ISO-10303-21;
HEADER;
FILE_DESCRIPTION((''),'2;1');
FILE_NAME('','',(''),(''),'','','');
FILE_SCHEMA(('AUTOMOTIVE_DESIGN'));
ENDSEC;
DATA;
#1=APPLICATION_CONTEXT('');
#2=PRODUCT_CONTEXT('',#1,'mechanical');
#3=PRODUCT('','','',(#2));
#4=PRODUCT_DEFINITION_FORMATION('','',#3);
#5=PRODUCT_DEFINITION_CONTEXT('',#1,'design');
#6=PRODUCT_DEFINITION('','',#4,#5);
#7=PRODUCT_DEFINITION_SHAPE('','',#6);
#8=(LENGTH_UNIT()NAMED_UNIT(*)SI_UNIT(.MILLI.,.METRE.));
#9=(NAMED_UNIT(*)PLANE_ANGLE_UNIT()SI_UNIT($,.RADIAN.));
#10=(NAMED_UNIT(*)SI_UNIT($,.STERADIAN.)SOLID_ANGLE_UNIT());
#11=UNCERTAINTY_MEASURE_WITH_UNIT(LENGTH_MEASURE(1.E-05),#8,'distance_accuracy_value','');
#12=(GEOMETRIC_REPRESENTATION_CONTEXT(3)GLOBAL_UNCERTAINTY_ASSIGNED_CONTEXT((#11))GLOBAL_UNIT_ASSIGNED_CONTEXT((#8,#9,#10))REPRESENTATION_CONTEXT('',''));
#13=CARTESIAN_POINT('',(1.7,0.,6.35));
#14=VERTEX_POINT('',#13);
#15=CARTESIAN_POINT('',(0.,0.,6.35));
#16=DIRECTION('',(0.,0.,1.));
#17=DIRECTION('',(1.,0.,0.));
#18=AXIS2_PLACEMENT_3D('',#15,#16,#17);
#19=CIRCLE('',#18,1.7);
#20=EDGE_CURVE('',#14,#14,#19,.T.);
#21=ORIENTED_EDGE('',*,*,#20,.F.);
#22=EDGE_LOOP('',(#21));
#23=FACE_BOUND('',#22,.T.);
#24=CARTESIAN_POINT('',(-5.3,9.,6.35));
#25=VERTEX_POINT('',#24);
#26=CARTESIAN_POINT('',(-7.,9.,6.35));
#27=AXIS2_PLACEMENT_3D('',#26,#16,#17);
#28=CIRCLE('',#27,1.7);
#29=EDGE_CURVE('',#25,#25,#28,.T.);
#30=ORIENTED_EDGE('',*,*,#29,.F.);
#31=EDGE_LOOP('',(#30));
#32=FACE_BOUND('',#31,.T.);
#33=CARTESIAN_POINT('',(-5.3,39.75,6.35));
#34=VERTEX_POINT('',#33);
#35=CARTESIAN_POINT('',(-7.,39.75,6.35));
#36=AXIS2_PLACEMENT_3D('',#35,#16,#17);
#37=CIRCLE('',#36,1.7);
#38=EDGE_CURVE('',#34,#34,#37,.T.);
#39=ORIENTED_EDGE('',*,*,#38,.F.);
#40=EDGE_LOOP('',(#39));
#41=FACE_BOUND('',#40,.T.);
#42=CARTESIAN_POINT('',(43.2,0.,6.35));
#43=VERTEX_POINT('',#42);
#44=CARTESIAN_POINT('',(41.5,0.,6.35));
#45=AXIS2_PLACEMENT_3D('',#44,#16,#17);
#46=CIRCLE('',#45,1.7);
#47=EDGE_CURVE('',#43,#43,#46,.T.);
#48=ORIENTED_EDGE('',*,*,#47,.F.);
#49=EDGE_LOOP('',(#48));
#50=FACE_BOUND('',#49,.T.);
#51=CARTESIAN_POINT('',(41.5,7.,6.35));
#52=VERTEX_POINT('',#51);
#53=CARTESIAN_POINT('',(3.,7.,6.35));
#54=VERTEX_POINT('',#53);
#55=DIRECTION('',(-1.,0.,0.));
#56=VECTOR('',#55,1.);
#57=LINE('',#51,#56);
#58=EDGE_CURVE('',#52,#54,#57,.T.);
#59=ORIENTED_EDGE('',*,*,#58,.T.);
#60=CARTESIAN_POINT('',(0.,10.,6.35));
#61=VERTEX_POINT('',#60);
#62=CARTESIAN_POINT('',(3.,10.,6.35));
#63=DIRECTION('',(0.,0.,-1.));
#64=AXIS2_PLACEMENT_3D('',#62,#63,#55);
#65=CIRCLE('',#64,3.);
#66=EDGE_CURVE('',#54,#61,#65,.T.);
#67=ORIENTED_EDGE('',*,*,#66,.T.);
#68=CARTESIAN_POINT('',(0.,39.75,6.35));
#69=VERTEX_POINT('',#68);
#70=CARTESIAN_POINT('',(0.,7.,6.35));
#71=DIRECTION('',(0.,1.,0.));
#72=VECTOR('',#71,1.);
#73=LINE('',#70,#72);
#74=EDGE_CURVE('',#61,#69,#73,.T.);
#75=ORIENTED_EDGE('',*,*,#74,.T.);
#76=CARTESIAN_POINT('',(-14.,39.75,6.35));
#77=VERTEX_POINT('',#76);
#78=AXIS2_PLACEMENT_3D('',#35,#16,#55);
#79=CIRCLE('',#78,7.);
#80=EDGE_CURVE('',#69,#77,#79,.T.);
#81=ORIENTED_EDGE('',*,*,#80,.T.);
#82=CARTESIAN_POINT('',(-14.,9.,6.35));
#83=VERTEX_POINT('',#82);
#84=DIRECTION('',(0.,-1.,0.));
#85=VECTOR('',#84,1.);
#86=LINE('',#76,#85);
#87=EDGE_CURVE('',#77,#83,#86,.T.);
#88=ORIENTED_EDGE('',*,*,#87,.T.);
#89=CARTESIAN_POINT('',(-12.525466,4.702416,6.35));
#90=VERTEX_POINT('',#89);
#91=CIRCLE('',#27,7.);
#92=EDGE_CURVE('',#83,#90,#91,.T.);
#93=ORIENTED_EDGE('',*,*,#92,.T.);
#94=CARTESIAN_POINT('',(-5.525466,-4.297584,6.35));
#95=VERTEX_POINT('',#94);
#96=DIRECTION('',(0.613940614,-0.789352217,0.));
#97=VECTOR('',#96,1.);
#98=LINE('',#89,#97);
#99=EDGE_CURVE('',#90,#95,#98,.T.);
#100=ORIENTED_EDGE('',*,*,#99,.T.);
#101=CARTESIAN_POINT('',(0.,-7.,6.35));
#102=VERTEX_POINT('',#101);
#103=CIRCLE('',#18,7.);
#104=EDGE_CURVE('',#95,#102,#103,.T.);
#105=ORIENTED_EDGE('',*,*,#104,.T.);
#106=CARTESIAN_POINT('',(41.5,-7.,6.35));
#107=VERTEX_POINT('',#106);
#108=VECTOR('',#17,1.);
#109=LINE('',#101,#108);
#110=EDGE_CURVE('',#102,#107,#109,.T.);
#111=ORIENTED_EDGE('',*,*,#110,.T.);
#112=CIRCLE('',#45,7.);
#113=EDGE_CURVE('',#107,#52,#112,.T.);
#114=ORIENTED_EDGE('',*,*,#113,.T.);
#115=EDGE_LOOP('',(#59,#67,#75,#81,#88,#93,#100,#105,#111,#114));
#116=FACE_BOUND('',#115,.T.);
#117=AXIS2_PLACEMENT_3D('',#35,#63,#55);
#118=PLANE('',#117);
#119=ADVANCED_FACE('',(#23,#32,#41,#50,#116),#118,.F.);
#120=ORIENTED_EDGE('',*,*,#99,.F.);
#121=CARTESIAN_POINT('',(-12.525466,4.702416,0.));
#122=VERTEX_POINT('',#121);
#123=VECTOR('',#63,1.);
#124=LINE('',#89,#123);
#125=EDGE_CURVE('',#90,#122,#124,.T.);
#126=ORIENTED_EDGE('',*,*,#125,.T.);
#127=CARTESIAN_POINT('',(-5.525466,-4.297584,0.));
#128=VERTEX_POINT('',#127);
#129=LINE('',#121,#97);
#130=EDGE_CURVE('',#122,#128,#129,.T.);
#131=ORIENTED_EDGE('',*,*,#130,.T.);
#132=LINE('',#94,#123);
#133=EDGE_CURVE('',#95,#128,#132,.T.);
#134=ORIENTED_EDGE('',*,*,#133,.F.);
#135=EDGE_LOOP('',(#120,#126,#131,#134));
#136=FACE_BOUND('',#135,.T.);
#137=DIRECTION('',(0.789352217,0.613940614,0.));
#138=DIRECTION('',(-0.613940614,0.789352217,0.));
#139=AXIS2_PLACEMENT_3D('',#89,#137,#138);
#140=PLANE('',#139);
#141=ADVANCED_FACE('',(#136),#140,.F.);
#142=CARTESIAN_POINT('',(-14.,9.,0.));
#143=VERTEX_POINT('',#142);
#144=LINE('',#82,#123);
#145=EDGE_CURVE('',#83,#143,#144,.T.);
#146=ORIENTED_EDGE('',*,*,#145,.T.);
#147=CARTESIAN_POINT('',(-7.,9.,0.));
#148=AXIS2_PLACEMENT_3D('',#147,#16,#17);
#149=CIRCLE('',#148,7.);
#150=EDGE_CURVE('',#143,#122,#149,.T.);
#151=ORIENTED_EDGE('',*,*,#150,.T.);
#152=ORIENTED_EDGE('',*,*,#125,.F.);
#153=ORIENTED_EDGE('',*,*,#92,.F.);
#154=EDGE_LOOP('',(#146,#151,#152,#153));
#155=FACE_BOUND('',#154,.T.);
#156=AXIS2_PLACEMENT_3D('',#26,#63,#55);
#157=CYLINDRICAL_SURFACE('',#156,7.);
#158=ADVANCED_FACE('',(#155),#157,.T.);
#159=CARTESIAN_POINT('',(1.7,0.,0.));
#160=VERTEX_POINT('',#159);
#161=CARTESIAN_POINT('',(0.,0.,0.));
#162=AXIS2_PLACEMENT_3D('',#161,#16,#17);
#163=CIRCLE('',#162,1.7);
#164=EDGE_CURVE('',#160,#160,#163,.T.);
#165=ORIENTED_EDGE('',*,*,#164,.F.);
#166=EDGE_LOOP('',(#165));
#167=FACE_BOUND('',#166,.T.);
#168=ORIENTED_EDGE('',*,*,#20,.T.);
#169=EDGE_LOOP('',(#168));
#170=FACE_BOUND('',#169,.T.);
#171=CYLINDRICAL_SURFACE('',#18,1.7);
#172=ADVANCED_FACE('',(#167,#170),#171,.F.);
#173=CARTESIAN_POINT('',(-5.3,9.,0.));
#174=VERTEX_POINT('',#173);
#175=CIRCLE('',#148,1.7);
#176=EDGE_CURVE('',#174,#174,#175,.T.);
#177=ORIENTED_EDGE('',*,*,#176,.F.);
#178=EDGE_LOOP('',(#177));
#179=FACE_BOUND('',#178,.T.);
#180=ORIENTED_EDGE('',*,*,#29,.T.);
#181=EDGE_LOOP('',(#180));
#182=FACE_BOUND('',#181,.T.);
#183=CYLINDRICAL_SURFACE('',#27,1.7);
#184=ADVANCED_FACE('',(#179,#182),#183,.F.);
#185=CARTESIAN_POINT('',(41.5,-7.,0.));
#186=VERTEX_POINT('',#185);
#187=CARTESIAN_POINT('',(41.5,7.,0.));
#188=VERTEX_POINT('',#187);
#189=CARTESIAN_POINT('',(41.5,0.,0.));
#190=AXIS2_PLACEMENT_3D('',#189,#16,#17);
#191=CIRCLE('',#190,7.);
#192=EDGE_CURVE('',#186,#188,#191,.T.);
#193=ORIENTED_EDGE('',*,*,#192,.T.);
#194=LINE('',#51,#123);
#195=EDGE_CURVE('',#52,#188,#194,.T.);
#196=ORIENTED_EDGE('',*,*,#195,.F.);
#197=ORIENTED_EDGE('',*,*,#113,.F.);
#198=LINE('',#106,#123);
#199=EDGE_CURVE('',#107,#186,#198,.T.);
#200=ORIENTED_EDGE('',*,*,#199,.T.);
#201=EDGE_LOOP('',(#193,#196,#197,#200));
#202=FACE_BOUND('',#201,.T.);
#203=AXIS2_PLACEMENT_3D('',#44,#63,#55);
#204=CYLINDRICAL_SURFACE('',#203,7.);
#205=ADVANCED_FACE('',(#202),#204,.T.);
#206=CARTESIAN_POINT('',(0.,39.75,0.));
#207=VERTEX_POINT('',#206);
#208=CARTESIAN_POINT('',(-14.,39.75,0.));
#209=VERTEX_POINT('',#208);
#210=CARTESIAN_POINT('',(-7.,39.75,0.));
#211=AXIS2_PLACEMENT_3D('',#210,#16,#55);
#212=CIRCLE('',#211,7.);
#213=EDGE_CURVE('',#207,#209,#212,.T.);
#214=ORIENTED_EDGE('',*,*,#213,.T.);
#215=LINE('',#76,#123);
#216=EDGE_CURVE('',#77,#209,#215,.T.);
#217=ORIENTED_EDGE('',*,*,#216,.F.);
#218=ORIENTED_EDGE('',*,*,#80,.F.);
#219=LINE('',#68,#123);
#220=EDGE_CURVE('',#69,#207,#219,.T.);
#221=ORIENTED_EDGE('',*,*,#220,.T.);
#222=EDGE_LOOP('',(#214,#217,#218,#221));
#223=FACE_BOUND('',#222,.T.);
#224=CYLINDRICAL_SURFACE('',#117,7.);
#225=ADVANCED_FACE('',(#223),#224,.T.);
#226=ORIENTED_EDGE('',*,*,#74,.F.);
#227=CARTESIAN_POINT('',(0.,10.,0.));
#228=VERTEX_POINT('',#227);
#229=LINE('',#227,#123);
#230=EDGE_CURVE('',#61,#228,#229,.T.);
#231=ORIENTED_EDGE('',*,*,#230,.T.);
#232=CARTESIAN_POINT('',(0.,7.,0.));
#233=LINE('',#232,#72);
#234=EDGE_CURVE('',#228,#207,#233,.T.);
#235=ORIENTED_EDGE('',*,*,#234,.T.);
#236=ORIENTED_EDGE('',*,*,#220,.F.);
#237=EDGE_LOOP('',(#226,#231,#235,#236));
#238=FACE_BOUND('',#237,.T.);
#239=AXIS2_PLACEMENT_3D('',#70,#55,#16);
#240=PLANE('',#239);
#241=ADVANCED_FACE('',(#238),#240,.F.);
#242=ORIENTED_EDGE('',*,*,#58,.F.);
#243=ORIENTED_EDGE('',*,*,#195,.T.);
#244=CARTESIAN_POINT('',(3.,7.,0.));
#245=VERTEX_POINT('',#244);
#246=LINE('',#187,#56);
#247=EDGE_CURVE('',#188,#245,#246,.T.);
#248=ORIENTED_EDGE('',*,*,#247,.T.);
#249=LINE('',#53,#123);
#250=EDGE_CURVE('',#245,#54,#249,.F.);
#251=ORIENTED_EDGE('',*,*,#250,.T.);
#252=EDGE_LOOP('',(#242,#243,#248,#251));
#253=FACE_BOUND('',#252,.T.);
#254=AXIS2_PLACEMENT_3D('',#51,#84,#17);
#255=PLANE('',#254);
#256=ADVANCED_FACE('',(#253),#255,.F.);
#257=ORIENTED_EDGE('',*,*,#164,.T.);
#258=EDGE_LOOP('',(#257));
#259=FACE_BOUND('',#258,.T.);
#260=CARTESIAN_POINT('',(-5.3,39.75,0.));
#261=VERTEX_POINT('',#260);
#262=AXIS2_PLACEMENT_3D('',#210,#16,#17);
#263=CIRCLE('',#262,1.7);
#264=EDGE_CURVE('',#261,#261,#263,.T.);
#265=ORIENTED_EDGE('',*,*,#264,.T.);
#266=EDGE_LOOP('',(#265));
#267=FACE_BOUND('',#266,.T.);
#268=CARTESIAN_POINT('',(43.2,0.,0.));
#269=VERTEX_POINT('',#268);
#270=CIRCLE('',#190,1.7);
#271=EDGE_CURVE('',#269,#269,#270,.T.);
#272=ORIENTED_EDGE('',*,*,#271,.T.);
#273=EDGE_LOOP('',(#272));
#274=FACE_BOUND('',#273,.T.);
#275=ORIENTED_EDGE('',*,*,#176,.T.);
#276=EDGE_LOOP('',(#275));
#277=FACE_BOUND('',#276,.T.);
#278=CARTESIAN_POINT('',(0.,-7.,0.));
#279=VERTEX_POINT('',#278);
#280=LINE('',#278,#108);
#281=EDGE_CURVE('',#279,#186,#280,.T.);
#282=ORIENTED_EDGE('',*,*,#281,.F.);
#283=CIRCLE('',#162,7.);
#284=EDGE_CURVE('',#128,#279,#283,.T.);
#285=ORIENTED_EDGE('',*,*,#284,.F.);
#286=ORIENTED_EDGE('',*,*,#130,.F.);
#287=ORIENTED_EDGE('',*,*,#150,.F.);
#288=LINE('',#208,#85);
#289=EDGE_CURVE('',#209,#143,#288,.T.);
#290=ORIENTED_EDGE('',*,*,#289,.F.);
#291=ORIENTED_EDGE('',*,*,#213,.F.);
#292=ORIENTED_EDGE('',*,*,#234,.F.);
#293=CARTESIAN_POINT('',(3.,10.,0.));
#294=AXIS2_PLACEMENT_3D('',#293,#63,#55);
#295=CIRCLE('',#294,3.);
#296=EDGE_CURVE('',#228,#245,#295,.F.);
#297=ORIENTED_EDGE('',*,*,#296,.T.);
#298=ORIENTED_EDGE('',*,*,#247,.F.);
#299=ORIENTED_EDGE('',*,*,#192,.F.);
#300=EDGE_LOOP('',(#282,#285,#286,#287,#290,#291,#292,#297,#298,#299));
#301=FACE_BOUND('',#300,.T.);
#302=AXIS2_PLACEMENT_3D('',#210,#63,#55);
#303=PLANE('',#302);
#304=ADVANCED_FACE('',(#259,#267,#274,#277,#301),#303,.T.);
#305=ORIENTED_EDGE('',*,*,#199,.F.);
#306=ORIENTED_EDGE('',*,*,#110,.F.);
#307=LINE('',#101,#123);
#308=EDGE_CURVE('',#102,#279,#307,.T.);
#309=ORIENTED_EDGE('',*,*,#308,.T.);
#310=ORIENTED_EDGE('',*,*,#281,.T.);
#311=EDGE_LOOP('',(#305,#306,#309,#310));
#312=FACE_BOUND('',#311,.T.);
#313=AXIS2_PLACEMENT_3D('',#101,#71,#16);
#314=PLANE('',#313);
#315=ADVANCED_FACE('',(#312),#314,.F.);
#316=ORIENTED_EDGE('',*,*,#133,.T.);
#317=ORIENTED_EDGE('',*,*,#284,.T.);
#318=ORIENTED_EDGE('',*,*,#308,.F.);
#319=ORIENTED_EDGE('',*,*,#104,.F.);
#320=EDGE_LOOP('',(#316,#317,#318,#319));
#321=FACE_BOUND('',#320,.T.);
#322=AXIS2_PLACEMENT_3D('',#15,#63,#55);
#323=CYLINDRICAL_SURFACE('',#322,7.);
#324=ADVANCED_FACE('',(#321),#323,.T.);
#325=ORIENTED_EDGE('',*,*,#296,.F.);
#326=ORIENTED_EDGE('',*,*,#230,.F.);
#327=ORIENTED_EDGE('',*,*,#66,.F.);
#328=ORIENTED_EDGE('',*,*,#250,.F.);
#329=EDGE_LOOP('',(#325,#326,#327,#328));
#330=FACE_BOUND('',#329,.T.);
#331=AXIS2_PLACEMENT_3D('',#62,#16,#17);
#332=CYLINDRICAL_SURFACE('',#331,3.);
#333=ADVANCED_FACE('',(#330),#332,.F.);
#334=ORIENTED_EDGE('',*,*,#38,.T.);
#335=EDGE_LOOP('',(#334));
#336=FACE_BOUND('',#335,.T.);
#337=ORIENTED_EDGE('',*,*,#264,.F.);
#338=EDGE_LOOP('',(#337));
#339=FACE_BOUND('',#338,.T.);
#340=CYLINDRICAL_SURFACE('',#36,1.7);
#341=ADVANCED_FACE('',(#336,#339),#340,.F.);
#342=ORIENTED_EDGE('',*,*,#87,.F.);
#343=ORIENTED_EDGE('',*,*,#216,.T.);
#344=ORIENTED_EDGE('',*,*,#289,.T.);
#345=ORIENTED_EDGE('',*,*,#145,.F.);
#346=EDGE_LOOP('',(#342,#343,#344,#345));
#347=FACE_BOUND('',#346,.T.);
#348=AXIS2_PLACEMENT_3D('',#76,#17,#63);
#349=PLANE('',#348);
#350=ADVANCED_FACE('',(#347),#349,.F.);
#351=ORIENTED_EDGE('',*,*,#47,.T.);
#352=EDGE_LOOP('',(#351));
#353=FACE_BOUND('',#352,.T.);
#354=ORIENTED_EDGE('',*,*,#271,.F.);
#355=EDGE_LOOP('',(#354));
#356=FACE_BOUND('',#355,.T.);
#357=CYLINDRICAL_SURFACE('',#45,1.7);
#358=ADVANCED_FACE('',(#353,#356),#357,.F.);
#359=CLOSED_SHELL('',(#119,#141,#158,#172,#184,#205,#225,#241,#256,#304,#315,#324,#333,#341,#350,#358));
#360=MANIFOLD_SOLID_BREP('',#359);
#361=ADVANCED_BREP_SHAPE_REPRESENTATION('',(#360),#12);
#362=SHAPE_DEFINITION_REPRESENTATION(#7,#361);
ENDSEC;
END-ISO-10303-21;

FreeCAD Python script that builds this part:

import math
import FreeCAD as App
import Part
import Sketcher
from FreeCAD import Vector


def edges_at(feature, points):
    """Names of the edges that pass closest to the given points."""
    edges = feature.Shape.Edges
    near = lambda p: min(range(len(edges)), key=lambda i: edges[i].distToShape(Part.Vertex(*p))[0])
    return sorted({f"Edge{near(p) + 1}" for p in points})

doc = App.newDocument("Part")
body = doc.addObject("PartDesign::Body", "Body")

# Sketch on XY plane
sketch1 = body.newObject("Sketcher::SketchObject", "Sketch")
sketch1.AttachmentSupport = (doc.getObject("XY_Plane"), [""])
sketch1.MapMode = "FlatFace"
sketch1.addGeometry(Part.LineSegment(Vector(-14, 39.8, 0), Vector(-14, 9, 0)), False)
sketch1.addGeometry(Part.ArcOfCircle(Part.Circle(Vector(-7, 9, 0), Vector(0, 0, 1), 7), math.radians(-180), math.radians(-142)), False)
sketch1.addGeometry(Part.LineSegment(Vector(-12.5, 4.7, 0), Vector(-5.5, -4.3, 0)), False)
sketch1.addGeometry(Part.ArcOfCircle(Part.Circle(Vector(0, 0, 0), Vector(0, 0, 1), 7), math.radians(-142), math.radians(-90)), False)
sketch1.addGeometry(Part.LineSegment(Vector(0, -7, 0), Vector(41.5, -7, 0)), False)
sketch1.addGeometry(Part.ArcOfCircle(Part.Circle(Vector(41.5, 0, 0), Vector(0, 0, 1), 7), math.radians(-90), math.radians(90)), False)
sketch1.addGeometry(Part.LineSegment(Vector(41.5, 7, 0), Vector(0, 7, 0)), False)
sketch1.addGeometry(Part.LineSegment(Vector(0, 7, 0), Vector(0, 39.8, 0)), False)
sketch1.addGeometry(Part.ArcOfCircle(Part.Circle(Vector(-7, 39.8, 0), Vector(0, 0, 1), 7), math.radians(0), math.radians(180)), False)
sketch1.addConstraint(Sketcher.Constraint("Tangent", 0, 2, 1, 1))
sketch1.addConstraint(Sketcher.Constraint("Tangent", 1, 2, 2, 1))
sketch1.addConstraint(Sketcher.Constraint("Tangent", 2, 2, 3, 1))
sketch1.addConstraint(Sketcher.Constraint("Tangent", 3, 2, 4, 1))
sketch1.addConstraint(Sketcher.Constraint("Tangent", 4, 2, 5, 1))
sketch1.addConstraint(Sketcher.Constraint("Tangent", 5, 2, 6, 1))
sketch1.addConstraint(Sketcher.Constraint("Coincident", 6, 2, 7, 1))
sketch1.addConstraint(Sketcher.Constraint("Tangent", 7, 2, 8, 1))
sketch1.addConstraint(Sketcher.Constraint("Tangent", 8, 2, 0, 1))
sketch1.addConstraint(Sketcher.Constraint("Vertical", 0))
sketch1.addConstraint(Sketcher.Constraint("Horizontal", 4))
sketch1.addConstraint(Sketcher.Constraint("Horizontal", 6))
sketch1.addConstraint(Sketcher.Constraint("Vertical", 7))
sketch1.addConstraint(Sketcher.Constraint("Coincident", 3, 3, -1, 1))
sketch1.addConstraint(Sketcher.Constraint("Equal", 1, 3))
sketch1.addConstraint(Sketcher.Constraint("Equal", 3, 5))
sketch1.addConstraint(Sketcher.Constraint("Equal", 5, 8))
sketch1.addConstraint(Sketcher.Constraint("PointOnObject", 6, 2, -2))
sketch1.addConstraint(Sketcher.Constraint("Radius", 1, 7.0))
sketch1.addConstraint(Sketcher.Constraint("DistanceX", 4, 1, 4, 2, 41.5))
sketch1.addConstraint(Sketcher.Constraint("DistanceY", -1, 1, 1, 3, 9.0))
sketch1.addConstraint(Sketcher.Constraint("DistanceY", 0, 2, 0, 1, 30.75))
pad1 = body.newObject("PartDesign::Pad", "Pad")
pad1.Profile = sketch1
pad1.Length = 6.35
doc.recompute()

fillet = body.newObject("PartDesign::Fillet", "Fillet")
fillet.Base = (pad1, edges_at(pad1, [(0, 7, 3.175)]))
fillet.Radius = 3

# Sketch on XY plane
sketch2 = body.newObject("Sketcher::SketchObject", "Sketch001")
sketch2.AttachmentSupport = (doc.getObject("XY_Plane"), [""])
sketch2.MapMode = "FlatFace"
sketch2.AttachmentOffset = App.Placement(Vector(0, 0, 6.35), App.Rotation())
sketch2.addGeometry(Part.Circle(Vector(-7, 39.8, 0), Vector(0, 0, 1), 1.7), False)
sketch2.addGeometry(Part.Circle(Vector(-7, 9, 0), Vector(0, 0, 1), 1.7), False)
sketch2.addGeometry(Part.Circle(Vector(0, 0, 0), Vector(0, 0, 1), 1.7), False)
sketch2.addGeometry(Part.Circle(Vector(41.5, 0, 0), Vector(0, 0, 1), 1.7), False)
sketch2.addConstraint(Sketcher.Constraint("Coincident", 2, 3, -1, 1))
sketch2.addConstraint(Sketcher.Constraint("Equal", 0, 1))
sketch2.addConstraint(Sketcher.Constraint("Equal", 1, 2))
sketch2.addConstraint(Sketcher.Constraint("Equal", 2, 3))
sketch2.addConstraint(Sketcher.Constraint("PointOnObject", 3, 3, -1))
sketch2.addConstraint(Sketcher.Constraint("Vertical", 0, 3, 1, 3))
sketch2.addConstraint(Sketcher.Constraint("Diameter", 0, 3.4))
sketch2.addConstraint(Sketcher.Constraint("DistanceX", 0, 3, -1, 1, 7.0))
sketch2.addConstraint(Sketcher.Constraint("DistanceY", -1, 1, 1, 3, 9.0))
sketch2.addConstraint(Sketcher.Constraint("DistanceX", -1, 1, 3, 3, 41.5))
sketch2.addConstraint(Sketcher.Constraint("DistanceY", -1, 1, 0, 3, 39.75))
doc.recompute()
hole = body.newObject("PartDesign::Hole", "Hole")
hole.Profile = sketch2
hole.ThreadType = "None"
hole.Diameter = 3.4
hole.DepthType = "ThroughAll"

doc.recompute()
